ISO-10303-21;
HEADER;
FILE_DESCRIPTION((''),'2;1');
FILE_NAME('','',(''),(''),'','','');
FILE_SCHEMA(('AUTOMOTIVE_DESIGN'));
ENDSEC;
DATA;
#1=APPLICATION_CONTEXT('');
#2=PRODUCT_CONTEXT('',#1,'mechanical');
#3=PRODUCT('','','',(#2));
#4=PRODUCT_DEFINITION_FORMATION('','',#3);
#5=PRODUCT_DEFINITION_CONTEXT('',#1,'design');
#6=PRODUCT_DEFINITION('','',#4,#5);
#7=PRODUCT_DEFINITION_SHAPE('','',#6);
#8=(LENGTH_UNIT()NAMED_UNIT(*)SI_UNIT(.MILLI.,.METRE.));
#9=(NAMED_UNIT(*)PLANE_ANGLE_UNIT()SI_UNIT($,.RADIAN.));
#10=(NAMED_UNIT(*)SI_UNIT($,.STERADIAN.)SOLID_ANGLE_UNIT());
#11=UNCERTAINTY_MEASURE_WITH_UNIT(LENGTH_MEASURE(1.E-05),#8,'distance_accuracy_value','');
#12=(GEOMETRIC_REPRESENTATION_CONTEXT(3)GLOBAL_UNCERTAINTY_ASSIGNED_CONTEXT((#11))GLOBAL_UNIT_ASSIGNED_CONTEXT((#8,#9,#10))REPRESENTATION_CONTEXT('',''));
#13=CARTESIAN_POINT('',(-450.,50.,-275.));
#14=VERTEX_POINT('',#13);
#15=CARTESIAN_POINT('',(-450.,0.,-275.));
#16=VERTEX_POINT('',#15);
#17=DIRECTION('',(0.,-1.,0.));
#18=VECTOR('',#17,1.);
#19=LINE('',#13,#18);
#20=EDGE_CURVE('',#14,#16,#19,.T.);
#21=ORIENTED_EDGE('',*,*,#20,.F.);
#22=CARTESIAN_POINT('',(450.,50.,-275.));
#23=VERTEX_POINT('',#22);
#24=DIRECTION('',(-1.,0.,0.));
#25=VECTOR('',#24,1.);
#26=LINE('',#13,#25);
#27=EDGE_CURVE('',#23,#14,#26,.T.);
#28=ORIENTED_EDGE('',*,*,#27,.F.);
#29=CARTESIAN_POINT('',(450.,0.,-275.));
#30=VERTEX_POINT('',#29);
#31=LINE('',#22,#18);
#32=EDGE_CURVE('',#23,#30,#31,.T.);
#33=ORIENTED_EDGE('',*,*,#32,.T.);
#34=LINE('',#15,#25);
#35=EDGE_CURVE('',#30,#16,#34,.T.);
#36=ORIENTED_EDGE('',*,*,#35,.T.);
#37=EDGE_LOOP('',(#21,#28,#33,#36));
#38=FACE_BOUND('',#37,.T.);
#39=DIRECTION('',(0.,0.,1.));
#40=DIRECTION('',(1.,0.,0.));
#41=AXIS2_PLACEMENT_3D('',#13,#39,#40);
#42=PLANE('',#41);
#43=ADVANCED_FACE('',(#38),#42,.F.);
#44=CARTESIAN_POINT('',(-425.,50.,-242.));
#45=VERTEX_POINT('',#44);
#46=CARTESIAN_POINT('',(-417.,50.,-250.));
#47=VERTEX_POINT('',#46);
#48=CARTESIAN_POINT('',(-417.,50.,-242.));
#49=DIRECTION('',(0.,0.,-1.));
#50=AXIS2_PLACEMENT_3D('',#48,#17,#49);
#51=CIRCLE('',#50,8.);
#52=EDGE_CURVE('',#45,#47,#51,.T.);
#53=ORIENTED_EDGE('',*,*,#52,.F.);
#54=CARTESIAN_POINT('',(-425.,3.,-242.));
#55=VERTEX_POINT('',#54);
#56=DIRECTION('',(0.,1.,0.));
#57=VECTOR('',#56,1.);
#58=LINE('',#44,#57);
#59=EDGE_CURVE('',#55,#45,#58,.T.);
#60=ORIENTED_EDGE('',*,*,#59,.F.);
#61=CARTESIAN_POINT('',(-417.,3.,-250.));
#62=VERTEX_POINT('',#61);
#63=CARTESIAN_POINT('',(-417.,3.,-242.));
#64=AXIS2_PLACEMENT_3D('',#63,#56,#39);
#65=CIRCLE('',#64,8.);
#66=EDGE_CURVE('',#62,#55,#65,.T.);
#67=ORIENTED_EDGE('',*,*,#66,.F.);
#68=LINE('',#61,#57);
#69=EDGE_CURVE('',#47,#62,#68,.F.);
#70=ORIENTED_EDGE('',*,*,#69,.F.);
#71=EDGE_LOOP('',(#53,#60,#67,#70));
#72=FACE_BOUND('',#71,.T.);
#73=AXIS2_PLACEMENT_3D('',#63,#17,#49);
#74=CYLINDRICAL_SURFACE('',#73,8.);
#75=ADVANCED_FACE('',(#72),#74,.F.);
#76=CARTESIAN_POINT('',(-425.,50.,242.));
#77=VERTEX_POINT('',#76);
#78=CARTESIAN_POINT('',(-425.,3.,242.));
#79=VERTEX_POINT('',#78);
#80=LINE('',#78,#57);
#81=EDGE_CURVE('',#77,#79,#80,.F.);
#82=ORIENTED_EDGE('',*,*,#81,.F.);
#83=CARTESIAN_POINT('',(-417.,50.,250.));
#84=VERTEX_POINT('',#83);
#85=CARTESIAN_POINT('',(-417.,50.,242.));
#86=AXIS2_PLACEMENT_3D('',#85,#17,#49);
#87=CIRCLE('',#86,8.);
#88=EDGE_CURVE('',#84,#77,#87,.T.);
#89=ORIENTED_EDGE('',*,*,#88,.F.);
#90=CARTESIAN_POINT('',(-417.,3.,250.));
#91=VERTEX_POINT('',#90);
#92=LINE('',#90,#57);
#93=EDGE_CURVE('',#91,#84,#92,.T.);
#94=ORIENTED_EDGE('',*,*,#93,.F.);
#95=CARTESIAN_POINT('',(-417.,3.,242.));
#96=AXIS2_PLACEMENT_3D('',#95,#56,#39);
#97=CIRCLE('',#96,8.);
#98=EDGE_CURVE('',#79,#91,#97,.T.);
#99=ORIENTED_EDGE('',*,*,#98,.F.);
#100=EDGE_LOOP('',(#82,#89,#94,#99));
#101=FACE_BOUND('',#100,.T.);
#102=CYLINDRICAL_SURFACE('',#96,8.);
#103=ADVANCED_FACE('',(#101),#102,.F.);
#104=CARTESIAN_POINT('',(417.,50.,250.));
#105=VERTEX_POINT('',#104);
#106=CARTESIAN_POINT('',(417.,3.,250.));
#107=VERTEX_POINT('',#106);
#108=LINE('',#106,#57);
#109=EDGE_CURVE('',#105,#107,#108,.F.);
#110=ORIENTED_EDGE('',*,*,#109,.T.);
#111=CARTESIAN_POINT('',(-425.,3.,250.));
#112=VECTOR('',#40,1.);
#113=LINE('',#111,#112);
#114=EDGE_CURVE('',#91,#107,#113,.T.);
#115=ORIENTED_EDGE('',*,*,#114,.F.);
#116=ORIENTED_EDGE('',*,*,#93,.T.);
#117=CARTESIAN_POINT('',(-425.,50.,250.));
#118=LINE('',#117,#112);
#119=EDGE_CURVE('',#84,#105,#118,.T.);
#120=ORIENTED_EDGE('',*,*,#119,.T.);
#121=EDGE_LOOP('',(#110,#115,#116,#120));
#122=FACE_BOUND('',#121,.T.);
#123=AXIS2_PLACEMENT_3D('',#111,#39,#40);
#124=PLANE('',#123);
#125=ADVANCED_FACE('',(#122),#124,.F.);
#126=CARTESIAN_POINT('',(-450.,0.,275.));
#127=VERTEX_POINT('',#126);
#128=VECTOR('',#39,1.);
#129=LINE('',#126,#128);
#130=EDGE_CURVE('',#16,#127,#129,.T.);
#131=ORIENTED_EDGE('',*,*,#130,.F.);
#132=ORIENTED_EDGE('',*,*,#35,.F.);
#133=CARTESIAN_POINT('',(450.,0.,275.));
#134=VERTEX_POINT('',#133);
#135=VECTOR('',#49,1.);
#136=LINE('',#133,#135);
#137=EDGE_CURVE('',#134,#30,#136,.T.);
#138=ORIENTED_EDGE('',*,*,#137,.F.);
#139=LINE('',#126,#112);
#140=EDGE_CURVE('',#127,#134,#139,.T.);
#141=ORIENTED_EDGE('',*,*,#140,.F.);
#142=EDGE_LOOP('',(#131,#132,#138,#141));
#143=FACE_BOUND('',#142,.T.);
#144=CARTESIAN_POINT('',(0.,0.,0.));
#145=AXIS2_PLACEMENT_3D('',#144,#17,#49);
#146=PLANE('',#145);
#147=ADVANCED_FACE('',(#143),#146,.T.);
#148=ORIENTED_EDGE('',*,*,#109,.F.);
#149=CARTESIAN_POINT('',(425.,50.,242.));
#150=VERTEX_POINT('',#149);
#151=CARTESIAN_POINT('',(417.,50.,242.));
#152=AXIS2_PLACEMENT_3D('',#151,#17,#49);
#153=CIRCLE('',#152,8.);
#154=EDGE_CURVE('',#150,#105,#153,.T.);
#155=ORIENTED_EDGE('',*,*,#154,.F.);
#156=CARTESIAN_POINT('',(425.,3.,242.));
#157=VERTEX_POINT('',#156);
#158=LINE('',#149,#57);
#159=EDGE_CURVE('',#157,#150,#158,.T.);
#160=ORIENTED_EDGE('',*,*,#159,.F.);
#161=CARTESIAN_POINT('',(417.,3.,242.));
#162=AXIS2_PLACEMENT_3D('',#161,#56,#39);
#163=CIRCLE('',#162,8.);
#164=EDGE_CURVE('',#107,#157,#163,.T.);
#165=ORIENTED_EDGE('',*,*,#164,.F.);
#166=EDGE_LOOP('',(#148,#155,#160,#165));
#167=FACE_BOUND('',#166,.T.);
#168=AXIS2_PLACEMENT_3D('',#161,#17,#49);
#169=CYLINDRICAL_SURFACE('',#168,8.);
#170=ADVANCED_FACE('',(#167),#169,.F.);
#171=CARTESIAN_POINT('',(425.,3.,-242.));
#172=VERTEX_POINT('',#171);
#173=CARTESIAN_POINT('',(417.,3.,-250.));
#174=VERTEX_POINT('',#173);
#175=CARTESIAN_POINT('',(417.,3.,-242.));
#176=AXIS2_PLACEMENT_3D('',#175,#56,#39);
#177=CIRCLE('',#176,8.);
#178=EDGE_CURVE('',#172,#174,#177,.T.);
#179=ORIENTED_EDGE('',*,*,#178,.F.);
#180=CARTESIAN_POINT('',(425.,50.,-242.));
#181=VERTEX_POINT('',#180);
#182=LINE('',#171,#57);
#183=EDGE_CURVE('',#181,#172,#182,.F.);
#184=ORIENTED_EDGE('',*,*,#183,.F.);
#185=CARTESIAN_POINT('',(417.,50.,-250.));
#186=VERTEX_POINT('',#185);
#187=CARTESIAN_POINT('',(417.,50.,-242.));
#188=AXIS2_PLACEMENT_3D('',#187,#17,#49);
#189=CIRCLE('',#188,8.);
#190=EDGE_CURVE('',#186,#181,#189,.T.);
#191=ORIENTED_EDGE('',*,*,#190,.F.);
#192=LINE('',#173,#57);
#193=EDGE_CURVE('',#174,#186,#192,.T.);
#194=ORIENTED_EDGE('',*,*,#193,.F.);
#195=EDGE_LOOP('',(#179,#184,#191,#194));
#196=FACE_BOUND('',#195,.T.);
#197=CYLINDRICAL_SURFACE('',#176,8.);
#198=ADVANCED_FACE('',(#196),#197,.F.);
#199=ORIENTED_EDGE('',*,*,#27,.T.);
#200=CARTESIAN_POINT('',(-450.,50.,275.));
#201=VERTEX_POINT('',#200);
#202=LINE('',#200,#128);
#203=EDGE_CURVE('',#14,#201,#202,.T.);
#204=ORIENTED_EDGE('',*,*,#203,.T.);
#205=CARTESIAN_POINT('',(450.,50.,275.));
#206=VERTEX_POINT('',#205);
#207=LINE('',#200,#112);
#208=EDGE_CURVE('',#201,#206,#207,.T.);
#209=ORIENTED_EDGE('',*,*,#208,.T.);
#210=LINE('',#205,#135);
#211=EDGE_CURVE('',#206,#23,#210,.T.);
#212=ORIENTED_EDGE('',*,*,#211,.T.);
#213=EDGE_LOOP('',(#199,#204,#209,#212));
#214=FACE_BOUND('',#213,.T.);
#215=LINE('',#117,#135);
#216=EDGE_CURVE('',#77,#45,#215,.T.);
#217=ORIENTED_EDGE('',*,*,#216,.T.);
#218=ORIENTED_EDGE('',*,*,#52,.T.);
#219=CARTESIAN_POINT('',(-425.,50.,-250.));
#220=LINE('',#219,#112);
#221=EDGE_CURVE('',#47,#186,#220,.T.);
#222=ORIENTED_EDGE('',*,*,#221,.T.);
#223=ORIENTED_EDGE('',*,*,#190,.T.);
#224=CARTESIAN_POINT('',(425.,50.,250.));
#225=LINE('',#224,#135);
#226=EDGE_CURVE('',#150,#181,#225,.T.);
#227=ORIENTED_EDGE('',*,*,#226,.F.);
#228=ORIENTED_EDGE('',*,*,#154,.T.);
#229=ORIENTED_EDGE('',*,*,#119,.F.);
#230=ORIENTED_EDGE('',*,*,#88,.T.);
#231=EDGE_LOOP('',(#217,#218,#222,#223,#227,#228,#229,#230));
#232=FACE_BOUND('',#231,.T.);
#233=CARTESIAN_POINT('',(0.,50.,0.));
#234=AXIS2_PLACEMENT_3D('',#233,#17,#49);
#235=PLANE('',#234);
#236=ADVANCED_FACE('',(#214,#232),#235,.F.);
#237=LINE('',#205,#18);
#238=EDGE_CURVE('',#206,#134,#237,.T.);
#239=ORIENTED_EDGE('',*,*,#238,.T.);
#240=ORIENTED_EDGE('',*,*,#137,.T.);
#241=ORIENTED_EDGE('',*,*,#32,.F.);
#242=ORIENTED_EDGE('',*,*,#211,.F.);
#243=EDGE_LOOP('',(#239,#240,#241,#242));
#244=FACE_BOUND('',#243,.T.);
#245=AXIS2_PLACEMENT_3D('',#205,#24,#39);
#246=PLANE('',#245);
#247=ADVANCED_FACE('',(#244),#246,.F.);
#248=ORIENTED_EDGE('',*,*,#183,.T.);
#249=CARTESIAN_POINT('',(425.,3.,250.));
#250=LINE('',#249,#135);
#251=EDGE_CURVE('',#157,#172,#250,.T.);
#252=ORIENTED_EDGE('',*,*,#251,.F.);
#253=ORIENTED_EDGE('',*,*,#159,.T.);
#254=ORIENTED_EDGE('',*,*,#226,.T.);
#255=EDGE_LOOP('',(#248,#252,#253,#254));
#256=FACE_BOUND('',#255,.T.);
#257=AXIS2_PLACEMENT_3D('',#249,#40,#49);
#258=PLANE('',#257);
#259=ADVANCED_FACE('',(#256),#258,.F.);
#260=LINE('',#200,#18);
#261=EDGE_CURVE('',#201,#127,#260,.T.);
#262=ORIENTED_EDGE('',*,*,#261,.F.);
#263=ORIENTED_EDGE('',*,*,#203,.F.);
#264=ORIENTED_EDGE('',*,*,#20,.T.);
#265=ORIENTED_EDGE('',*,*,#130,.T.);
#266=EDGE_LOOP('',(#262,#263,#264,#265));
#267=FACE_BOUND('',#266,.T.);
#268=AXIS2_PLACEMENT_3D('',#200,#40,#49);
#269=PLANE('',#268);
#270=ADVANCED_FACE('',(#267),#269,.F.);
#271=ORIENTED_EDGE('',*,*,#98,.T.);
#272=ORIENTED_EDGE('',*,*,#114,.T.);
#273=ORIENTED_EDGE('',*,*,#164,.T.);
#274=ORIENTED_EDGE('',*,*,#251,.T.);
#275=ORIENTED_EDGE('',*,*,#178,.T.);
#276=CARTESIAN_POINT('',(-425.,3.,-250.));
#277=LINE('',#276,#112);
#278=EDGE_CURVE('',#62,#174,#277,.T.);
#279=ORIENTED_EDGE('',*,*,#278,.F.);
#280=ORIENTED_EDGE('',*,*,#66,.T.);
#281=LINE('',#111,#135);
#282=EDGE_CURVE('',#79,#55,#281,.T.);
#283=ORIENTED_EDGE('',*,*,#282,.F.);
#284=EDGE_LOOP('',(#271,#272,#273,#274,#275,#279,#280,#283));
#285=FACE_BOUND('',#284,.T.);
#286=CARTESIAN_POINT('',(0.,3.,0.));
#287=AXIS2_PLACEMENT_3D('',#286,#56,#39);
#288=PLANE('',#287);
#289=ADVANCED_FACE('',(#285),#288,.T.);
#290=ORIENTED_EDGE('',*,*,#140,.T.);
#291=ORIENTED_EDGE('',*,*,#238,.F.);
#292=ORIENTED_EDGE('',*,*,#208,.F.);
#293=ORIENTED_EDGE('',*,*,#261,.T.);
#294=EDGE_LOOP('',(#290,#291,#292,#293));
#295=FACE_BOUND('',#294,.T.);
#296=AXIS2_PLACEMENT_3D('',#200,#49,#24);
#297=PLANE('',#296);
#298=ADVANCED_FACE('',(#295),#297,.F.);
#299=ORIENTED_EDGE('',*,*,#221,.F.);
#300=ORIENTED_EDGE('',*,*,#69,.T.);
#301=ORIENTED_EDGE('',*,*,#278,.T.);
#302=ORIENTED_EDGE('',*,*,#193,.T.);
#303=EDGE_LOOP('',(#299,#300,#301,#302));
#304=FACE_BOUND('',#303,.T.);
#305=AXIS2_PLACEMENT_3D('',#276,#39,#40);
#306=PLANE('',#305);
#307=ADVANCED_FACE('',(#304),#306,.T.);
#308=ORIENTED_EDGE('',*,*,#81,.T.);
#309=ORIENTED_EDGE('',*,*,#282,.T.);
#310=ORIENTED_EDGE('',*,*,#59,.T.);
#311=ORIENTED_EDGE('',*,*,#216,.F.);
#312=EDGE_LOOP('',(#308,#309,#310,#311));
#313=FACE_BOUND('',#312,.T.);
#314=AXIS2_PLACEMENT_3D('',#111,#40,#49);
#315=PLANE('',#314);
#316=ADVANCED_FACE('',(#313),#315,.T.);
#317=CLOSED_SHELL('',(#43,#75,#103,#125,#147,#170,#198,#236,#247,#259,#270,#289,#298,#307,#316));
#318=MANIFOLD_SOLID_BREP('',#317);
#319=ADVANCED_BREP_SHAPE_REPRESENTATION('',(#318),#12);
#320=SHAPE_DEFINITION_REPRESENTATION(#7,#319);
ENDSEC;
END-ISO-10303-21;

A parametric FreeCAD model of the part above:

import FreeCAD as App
import Part
import Sketcher
from FreeCAD import Vector
Q = App.Units.Quantity


def edges_at(feature, points):
    """Names of the edges that pass closest to the given points."""
    edges = feature.Shape.Edges
    near = lambda p: min(range(len(edges)), key=lambda i: edges[i].distToShape(Part.Vertex(*p))[0])
    return sorted({f"Edge{near(p) + 1}" for p in points})

doc = App.newDocument("Part")
params = doc.addObject("Spreadsheet::Sheet", "Params")
for row, (alias, value) in enumerate([
    ("sketch1_width", "900 mm"),
    ("sketch1_height", "550 mm"),
    ("pad1_length", "50 mm"),
    ("sketch2_width", "850 mm"),
    ("sketch2_height", "500 mm"),
    ("pocket1_length", "47 mm"),
    ("fillet_radius", "8 mm"),
], start=1):
    params.set(f"A{row}", alias)
    params.set(f"B{row}", "=" + value)
    params.setAlias(f"B{row}", alias)

body = doc.addObject("PartDesign::Body", "Body")

# Sketch on XZ plane
sketch1 = doc.addObject("Sketcher::SketchObject", "Sketch")
body.addObject(sketch1)
sketch1.AttachmentSupport = (doc.XZ_Plane, [""])
sketch1.MapMode = "FlatFace"
sketch1.addGeometry([
    Part.LineSegment(Vector(-450, -275, 0), Vector(-450, 275, 0)),
    Part.LineSegment(Vector(-450, 275, 0), Vector(450, 275, 0)),
    Part.LineSegment(Vector(450, 275, 0), Vector(450, -275, 0)),
    Part.LineSegment(Vector(450, -275, 0), Vector(-450, -275, 0)),
], False)
sketch1.addConstraint([
    Sketcher.Constraint("Coincident", 0, 2, 1, 1),
    Sketcher.Constraint("Coincident", 1, 2, 2, 1),
    Sketcher.Constraint("Coincident", 2, 2, 3, 1),
    Sketcher.Constraint("Coincident", 3, 2, 0, 1),
    Sketcher.Constraint("Vertical", 0),
    Sketcher.Constraint("Horizontal", 1),
    Sketcher.Constraint("Vertical", 2),
    Sketcher.Constraint("Horizontal", 3),
    Sketcher.Constraint("Symmetric", 0, 2, 2, 2, -1, 1),
    Sketcher.Constraint("DistanceX", 1, 1, 1, 2, Q("900 mm")),
    Sketcher.Constraint("DistanceY", 0, 1, 0, 2, Q("550 mm")),
])
sketch1.setExpression("Constraints[9]", "Params.sketch1_width")
sketch1.setExpression("Constraints[10]", "Params.sketch1_height")
pad1 = doc.addObject("PartDesign::Pad", "Pad")
body.addObject(pad1)
pad1.Profile = sketch1
pad1.setExpression("Length", "Params.pad1_length")
pad1.Reversed = True

# Sketch on XZ plane
sketch2 = doc.addObject("Sketcher::SketchObject", "Sketch001")
body.addObject(sketch2)
sketch2.AttachmentSupport = (doc.XZ_Plane, [""])
sketch2.MapMode = "FlatFace"
sketch2.AttachmentOffset = App.Placement(Vector(0, 0, -50), App.Rotation())
sketch2.addGeometry([
    Part.LineSegment(Vector(-425, -250, 0), Vector(-425, 250, 0)),
    Part.LineSegment(Vector(-425, 250, 0), Vector(425, 250, 0)),
    Part.LineSegment(Vector(425, 250, 0), Vector(425, -250, 0)),
    Part.LineSegment(Vector(425, -250, 0), Vector(-425, -250, 0)),
], False)
sketch2.addConstraint([
    Sketcher.Constraint("Coincident", 0, 2, 1, 1),
    Sketcher.Constraint("Coincident", 1, 2, 2, 1),
    Sketcher.Constraint("Coincident", 2, 2, 3, 1),
    Sketcher.Constraint("Coincident", 3, 2, 0, 1),
    Sketcher.Constraint("Vertical", 0),
    Sketcher.Constraint("Horizontal", 1),
    Sketcher.Constraint("Vertical", 2),
    Sketcher.Constraint("Horizontal", 3),
    Sketcher.Constraint("Symmetric", 0, 2, 2, 2, -1, 1),
    Sketcher.Constraint("DistanceX", 1, 1, 1, 2, Q("850 mm")),
    Sketcher.Constraint("DistanceY", 0, 1, 0, 2, Q("500 mm")),
])
sketch2.setExpression("Constraints[9]", "Params.sketch2_width")
sketch2.setExpression("Constraints[10]", "Params.sketch2_height")
pocket1 = doc.addObject("PartDesign::Pocket", "Pocket")
body.addObject(pocket1)
pocket1.Profile = sketch2
pocket1.setExpression("Length", "Params.pocket1_length")
pocket1.Reversed = True
doc.recompute()

fillet = doc.addObject("PartDesign::Fillet", "Fillet")
body.addObject(fillet)
fillet.Base = (pocket1, edges_at(pocket1, [
    (425, 26.5, 250),
    (-425, 26.5, 250),
    (-425, 26.5, -250),
    (425, 26.5, -250),
]))
fillet.setExpression("Radius", "Params.fillet_radius")

doc.recompute()
